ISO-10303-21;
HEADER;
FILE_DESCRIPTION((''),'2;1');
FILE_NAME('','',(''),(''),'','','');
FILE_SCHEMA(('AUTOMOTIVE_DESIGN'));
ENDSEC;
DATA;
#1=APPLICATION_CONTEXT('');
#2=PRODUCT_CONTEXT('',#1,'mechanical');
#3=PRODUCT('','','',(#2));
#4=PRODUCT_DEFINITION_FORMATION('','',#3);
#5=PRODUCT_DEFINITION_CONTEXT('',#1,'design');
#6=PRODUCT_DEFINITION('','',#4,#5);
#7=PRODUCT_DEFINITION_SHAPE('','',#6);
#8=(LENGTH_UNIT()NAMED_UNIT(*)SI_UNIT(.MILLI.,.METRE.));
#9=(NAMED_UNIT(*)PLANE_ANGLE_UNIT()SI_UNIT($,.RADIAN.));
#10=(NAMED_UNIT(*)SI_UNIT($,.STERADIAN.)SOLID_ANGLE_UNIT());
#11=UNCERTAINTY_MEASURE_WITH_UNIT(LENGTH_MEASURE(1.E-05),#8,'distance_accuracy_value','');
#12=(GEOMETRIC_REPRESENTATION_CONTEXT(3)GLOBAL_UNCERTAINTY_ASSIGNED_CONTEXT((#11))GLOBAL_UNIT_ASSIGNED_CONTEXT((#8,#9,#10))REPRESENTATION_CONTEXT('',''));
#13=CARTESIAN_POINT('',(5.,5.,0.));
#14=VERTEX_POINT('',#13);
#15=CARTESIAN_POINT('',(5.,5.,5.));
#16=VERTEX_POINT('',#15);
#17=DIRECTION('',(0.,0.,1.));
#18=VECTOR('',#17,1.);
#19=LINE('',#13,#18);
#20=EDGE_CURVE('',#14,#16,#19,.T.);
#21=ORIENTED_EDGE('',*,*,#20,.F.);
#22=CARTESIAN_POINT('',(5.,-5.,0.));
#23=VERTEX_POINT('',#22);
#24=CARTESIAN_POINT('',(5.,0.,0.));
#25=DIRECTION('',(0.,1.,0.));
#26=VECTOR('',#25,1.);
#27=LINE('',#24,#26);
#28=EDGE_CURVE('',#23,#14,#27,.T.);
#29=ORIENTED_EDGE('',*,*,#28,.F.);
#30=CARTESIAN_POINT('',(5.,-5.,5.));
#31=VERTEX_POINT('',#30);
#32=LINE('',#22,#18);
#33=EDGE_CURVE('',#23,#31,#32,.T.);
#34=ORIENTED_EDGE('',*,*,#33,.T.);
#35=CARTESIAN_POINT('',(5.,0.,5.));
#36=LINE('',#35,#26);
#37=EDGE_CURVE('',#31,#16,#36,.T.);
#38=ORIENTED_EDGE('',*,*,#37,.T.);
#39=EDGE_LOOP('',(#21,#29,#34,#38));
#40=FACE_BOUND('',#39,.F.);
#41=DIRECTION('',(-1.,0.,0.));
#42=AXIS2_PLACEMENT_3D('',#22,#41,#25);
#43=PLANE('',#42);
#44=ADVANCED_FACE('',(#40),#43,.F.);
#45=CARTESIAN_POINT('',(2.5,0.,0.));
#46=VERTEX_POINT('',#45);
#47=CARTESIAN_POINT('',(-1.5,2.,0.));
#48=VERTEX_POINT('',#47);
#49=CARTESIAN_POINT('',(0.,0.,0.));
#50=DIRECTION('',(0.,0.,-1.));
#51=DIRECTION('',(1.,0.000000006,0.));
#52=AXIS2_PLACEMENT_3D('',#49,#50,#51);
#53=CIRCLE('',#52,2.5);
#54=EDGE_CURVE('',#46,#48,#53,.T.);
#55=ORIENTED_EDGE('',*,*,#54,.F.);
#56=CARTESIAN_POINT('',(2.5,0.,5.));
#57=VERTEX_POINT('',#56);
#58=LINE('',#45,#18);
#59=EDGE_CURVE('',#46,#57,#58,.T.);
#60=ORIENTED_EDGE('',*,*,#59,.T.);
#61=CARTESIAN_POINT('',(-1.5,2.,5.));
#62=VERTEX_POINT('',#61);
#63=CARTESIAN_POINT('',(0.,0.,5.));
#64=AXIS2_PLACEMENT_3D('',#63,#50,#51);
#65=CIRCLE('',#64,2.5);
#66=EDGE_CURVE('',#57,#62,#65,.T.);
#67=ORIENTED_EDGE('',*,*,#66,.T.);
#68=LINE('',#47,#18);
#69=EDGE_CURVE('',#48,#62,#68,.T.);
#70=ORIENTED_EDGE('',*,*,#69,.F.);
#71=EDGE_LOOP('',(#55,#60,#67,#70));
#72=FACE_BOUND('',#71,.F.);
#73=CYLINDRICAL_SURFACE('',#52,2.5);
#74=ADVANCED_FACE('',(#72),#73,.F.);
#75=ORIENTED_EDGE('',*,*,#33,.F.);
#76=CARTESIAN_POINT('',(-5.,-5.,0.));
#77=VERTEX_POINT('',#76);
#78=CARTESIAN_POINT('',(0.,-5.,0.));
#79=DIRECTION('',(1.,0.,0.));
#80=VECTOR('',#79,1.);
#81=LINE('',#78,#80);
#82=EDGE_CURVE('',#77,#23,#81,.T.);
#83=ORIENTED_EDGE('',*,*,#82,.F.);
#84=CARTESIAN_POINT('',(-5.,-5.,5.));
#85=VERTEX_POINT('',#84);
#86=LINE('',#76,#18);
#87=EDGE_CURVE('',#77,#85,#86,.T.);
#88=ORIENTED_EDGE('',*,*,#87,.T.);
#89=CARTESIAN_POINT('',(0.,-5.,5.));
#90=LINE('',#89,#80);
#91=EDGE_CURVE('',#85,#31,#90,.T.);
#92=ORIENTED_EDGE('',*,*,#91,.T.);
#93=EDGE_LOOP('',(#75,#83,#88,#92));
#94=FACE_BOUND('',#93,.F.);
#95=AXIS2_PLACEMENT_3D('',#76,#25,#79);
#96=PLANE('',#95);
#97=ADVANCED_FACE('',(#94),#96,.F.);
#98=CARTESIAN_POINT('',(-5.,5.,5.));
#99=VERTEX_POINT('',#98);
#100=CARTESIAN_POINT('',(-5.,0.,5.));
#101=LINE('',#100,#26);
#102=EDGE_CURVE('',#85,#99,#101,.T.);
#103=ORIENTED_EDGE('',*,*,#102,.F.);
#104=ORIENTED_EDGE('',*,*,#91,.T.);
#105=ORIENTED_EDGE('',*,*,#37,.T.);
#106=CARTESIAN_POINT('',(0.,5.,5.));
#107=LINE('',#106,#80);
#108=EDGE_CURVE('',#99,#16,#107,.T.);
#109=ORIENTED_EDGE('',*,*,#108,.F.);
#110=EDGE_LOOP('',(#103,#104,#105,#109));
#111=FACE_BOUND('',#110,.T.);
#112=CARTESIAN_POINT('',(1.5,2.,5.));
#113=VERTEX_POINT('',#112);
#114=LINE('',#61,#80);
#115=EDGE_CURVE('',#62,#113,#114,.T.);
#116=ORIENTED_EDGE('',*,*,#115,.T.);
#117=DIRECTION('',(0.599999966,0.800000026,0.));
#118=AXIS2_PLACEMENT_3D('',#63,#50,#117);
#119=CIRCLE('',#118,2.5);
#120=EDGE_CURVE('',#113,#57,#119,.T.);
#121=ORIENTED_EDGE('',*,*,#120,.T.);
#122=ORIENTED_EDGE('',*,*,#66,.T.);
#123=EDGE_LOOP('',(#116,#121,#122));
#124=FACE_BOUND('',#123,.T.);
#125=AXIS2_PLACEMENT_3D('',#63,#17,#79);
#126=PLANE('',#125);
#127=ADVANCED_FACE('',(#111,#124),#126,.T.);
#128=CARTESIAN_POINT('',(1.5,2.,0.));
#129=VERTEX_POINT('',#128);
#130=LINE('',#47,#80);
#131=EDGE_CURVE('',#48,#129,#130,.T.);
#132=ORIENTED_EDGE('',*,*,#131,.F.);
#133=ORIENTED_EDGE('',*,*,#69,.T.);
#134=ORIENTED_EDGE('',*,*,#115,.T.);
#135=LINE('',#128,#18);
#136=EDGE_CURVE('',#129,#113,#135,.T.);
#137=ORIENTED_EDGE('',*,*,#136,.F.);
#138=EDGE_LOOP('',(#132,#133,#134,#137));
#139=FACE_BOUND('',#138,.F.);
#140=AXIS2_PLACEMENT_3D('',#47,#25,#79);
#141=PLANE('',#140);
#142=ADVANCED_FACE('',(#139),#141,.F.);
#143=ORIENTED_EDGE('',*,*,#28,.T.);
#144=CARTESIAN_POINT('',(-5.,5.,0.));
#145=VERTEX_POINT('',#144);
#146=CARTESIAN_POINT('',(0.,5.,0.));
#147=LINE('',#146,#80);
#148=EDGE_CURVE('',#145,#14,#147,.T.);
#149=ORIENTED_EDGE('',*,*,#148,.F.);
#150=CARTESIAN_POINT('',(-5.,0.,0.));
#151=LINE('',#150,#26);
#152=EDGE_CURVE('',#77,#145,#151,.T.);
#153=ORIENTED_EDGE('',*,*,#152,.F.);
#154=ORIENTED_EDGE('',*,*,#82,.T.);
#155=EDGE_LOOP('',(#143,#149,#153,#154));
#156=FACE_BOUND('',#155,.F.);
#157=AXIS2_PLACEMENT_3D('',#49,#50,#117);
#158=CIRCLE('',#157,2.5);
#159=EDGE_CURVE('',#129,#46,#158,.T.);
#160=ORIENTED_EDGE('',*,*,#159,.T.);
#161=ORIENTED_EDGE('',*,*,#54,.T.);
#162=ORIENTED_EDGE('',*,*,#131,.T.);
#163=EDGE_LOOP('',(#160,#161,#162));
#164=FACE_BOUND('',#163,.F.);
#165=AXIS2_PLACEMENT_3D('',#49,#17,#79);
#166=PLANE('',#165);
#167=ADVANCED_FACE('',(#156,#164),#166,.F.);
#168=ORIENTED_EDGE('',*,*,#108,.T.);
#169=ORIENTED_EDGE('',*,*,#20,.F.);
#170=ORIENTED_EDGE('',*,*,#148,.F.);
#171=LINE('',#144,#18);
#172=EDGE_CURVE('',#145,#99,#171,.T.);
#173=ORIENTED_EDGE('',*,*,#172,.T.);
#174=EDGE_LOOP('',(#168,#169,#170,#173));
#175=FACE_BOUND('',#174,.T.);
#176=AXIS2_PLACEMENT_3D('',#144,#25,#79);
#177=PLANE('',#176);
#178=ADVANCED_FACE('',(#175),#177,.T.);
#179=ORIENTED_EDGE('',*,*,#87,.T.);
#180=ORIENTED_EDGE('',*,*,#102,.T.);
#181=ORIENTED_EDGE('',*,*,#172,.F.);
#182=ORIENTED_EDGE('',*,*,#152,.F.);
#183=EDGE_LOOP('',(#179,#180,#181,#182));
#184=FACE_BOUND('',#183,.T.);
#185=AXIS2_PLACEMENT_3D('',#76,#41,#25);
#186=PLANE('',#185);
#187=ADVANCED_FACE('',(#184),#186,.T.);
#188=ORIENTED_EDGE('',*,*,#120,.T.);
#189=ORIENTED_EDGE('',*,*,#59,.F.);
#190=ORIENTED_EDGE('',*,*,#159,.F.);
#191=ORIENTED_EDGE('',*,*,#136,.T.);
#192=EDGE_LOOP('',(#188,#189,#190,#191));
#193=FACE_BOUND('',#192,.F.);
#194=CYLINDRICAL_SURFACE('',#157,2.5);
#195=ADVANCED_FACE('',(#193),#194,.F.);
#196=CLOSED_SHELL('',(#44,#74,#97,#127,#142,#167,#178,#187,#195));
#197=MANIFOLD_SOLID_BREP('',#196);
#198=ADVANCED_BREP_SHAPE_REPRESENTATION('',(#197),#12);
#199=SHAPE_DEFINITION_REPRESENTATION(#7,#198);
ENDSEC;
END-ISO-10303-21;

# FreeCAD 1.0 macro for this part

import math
import FreeCAD as App
import Part
import Sketcher
from FreeCAD import Vector


def add_polygon(sketch, points):
    """Adds a closed chain of lines whose ends are joined by coincident constraints."""
    first, n = sketch.GeometryCount, len(points)
    for a, b in zip(points, points[1:] + points[:1]):
        sketch.addGeometry(Part.LineSegment(App.Vector(*a, 0), App.Vector(*b, 0)), False)
    for i in range(n):
        sketch.addConstraint(Sketcher.Constraint("Coincident", first + i, 2, first + (i + 1) % n, 1))

doc = App.newDocument("Part")
params = doc.addObject("Spreadsheet::Sheet", "Params")
for row, (alias, value) in enumerate([
    ("sketch1_radius", "2.5 mm"),
    ("sketch1_width", "10 mm"),
    ("sketch1_width2", "3 mm"),
    ("pad1_length", "5 mm"),
], start=1):
    params.set(f"A{row}", alias)
    params.set(f"B{row}", "=" + value)
    params.setAlias(f"B{row}", alias)

body = doc.addObject("PartDesign::Body", "Body")

# Sketch on XY plane
sketch1 = doc.addObject("Sketcher::SketchObject", "Sketch")
body.addObject(sketch1)
sketch1.AttachmentSupport = (doc.XY_Plane, [""])
sketch1.MapMode = "FlatFace"
add_polygon(sketch1, [(-5, 5), (-5, -5), (5, -5), (5, 5)])  # lines 0-3
sketch1.addGeometry(Part.ArcOfCircle(Part.Circle(Vector(0, 0, 0), Vector(0, 0, 1), 2.5), math.radians(127), math.radians(360)), False)  # 4
sketch1.addGeometry(Part.LineSegment(Vector(-1.5, 2, 0), Vector(1.5, 2, 0)), False)  # 5
sketch1.addGeometry(Part.ArcOfCircle(Part.Circle(Vector(0, 0, 0), Vector(0, 0, 1), 2.5), math.radians(0), math.radians(53)), False)  # 6
sketch1.addConstraint([
    Sketcher.Constraint("Coincident", 4, 1, 5, 1),
    Sketcher.Constraint("Coincident", 5, 2, 6, 2),
    Sketcher.Constraint("Tangent", 6, 1, 4, 2),
    Sketcher.Constraint("Vertical", 0),
    Sketcher.Constraint("Horizontal", 1),
    Sketcher.Constraint("Vertical", 2),
    Sketcher.Constraint("Horizontal", 3),
    Sketcher.Constraint("Horizontal", 5),
    Sketcher.Constraint("Coincident", 4, 3, -1, 1),
    Sketcher.Constraint("Equal", 4, 6),
    Sketcher.Constraint("Symmetric", 0, 2, 2, 2, -1, 1),
    Sketcher.Constraint("PointOnObject", 6, 1, -1),
    Sketcher.Constraint("Equal", 3, 0),
    Sketcher.Constraint("Radius", 4, 2.5),
    Sketcher.Constraint("DistanceX", 1, 1, 1, 2, 10.0),
    Sketcher.Constraint("DistanceX", 5, 1, 5, 2, 3.0),
])
sketch1.setExpression("Constraints[17]", "Params.sketch1_radius")
sketch1.setExpression("Constraints[18]", "Params.sketch1_width")
sketch1.setExpression("Constraints[19]", "Params.sketch1_width2")
pad1 = doc.addObject("PartDesign::Pad", "Pad")
body.addObject(pad1)
pad1.Profile = sketch1
pad1.setExpression("Length", "Params.pad1_length")

doc.recompute()
